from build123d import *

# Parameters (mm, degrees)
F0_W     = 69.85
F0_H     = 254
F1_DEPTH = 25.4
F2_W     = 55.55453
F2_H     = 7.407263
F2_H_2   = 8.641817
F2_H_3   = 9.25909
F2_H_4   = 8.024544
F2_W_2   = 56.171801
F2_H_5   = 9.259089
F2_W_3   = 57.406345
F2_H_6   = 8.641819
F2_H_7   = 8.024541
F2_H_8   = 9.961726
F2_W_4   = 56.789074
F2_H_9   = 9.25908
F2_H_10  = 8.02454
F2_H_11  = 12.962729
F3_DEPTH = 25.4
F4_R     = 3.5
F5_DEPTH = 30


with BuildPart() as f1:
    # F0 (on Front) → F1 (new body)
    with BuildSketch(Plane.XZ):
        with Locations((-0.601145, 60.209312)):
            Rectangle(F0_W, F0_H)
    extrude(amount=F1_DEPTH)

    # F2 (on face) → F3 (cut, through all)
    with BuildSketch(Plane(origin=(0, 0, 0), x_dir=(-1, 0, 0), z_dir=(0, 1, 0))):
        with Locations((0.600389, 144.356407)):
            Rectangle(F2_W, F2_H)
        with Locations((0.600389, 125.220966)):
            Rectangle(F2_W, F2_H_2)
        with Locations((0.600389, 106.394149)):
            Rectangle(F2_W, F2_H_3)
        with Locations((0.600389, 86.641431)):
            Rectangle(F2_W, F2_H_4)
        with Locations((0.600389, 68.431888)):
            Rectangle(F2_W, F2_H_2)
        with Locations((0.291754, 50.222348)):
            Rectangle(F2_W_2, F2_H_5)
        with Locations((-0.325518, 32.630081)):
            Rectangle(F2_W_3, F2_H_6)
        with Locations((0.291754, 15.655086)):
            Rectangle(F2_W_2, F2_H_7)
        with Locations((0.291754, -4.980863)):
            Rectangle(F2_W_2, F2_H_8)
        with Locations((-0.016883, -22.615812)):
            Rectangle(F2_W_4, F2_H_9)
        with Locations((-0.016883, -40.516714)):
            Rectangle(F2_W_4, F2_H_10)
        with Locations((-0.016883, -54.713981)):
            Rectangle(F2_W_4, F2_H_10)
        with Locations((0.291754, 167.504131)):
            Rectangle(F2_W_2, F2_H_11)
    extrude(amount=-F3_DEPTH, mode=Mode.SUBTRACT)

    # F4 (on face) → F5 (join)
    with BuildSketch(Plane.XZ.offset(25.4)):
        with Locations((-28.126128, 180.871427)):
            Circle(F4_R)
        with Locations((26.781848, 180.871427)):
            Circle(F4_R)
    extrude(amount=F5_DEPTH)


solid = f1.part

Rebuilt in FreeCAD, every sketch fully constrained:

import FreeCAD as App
import Part
import Sketcher

V = App.Vector
Q = App.Units.Quantity

doc = App.newDocument("Part")
params = doc.addObject("Spreadsheet::Sheet", "Params")
for row, (alias, value) in enumerate([
    ("sketch1_height", "10 in"),
    ("sketch1_width", "2.75 in"),
    ("pad1_length", "1 in"),
    ("pad2_length", "30 mm"),
], start=1):
    params.set(f"A{row}", alias)
    params.set(f"B{row}", "=" + value)
    params.setAlias(f"B{row}", alias)

body = doc.addObject("PartDesign::Body", "Body")

# Sketch on XZ plane
sketch1 = body.newObject("Sketcher::SketchObject", "Sketch")
sketch1.AttachmentSupport = (doc.getObject("XZ_Plane"), [""])
sketch1.MapMode = "FlatFace"
sketch1.addGeometry(Part.LineSegment(V(-35.526145, 187.209312, 0), V(-35.526145, -66.790688, 0)), False)
sketch1.addGeometry(Part.LineSegment(V(-35.526145, -66.790688, 0), V(34.323855, -66.790688, 0)), False)
sketch1.addGeometry(Part.LineSegment(V(34.323855, -66.790688, 0), V(34.323855, 187.209312, 0)), False)
sketch1.addGeometry(Part.LineSegment(V(34.323855, 187.209312, 0), V(-35.526145, 187.209312, 0)), False)
sketch1.addConstraint(Sketcher.Constraint("Coincident", 0, 2, 1, 1))
sketch1.addConstraint(Sketcher.Constraint("Coincident", 1, 2, 2, 1))
sketch1.addConstraint(Sketcher.Constraint("Coincident", 2, 2, 3, 1))
sketch1.addConstraint(Sketcher.Constraint("Coincident", 3, 2, 0, 1))
sketch1.addConstraint(Sketcher.Constraint("Vertical", 0))
sketch1.addConstraint(Sketcher.Constraint("Horizontal", 1))
sketch1.addConstraint(Sketcher.Constraint("Vertical", 2))
sketch1.addConstraint(Sketcher.Constraint("Horizontal", 3))
sketch1.addConstraint(Sketcher.Constraint("DistanceY", 0, 2, 0, 1, Q("10 in")))
sketch1.addConstraint(Sketcher.Constraint("DistanceX", 1, 1, 1, 2, Q("2.75 in")))
sketch1.addConstraint(Sketcher.Constraint("DistanceY", 0, 2, -1, 1, Q("66.790688 mm")))
sketch1.addConstraint(Sketcher.Constraint("DistanceX", 0, 2, -1, 1, Q("35.526145 mm")))
sketch1.setExpression("Constraints[8]", "Params.sketch1_height")
sketch1.setExpression("Constraints[9]", "Params.sketch1_width")
pad1 = body.newObject("PartDesign::Pad", "Pad")
pad1.Profile = sketch1
pad1.setExpression("Length", "Params.pad1_length")

# Sketch on XZ plane
sketch2 = body.newObject("Sketcher::SketchObject", "Sketch001")
sketch2.AttachmentSupport = (doc.getObject("XZ_Plane"), [""])
sketch2.MapMode = "FlatFace"
sketch2.addGeometry(Part.LineSegment(V(27.176876, 148.060038, 0), V(27.176876, 140.652775, 0)), False)
sketch2.addGeometry(Part.LineSegment(V(27.176876, 140.652775, 0), V(-28.377654, 140.652775, 0)), False)
sketch2.addGeometry(Part.LineSegment(V(-28.377654, 140.652775, 0), V(-28.377654, 148.060038, 0)), False)
sketch2.addGeometry(Part.LineSegment(V(-28.377654, 148.060038, 0), V(27.176876, 148.060038, 0)), False)
sketch2.addGeometry(Part.LineSegment(V(27.176876, 129.541875, 0), V(27.176876, 120.900058, 0)), False)
sketch2.addGeometry(Part.LineSegment(V(27.176876, 120.900058, 0), V(-28.377654, 120.900058, 0)), False)
sketch2.addGeometry(Part.LineSegment(V(-28.377654, 120.900058, 0), V(-28.377654, 129.541875, 0)), False)
sketch2.addGeometry(Part.LineSegment(V(-28.377654, 129.541875, 0), V(27.176876, 129.541875, 0)), False)
sketch2.addGeometry(Part.LineSegment(V(27.176876, 111.023694, 0), V(27.176876, 101.764604, 0)), False)
sketch2.addGeometry(Part.LineSegment(V(27.176876, 101.764604, 0), V(-28.377654, 101.764604, 0)), False)
sketch2.addGeometry(Part.LineSegment(V(-28.377654, 101.764604, 0), V(-28.377654, 111.023694, 0)), False)
sketch2.addGeometry(Part.LineSegment(V(-28.377654, 111.023694, 0), V(27.176876, 111.023694, 0)), False)
sketch2.addGeometry(Part.LineSegment(V(27.176876, 90.653703, 0), V(27.176876, 82.629159, 0)), False)
sketch2.addGeometry(Part.LineSegment(V(27.176876, 82.629159, 0), V(-28.377654, 82.629159, 0)), False)
sketch2.addGeometry(Part.LineSegment(V(-28.377654, 82.629159, 0), V(-28.377654, 90.653703, 0)), False)
sketch2.addGeometry(Part.LineSegment(V(-28.377654, 90.653703, 0), V(27.176876, 90.653703, 0)), False)
sketch2.addGeometry(Part.LineSegment(V(27.176876, 72.752797, 0), V(27.176876, 64.110979, 0)), False)
sketch2.addGeometry(Part.LineSegment(V(27.176876, 64.110979, 0), V(-28.377654, 64.110979, 0)), False)
sketch2.addGeometry(Part.LineSegment(V(-28.377654, 64.110979, 0), V(-28.377654, 72.752797, 0)), False)
sketch2.addGeometry(Part.LineSegment(V(-28.377654, 72.752797, 0), V(27.176876, 72.752797, 0)), False)
sketch2.addGeometry(Part.LineSegment(V(27.794147, 54.851892, 0), V(27.794147, 45.592804, 0)), False)
sketch2.addGeometry(Part.LineSegment(V(27.794147, 45.592804, 0), V(-28.377654, 45.592804, 0)), False)
sketch2.addGeometry(Part.LineSegment(V(-28.377654, 45.592804, 0), V(-28.377654, 54.851892, 0)), False)
sketch2.addGeometry(Part.LineSegment(V(-28.377654, 54.851892, 0), V(27.794147, 54.851892, 0)), False)
sketch2.addGeometry(Part.LineSegment(V(29.02869, 36.950991, 0), V(29.02869, 28.309172, 0)), False)
sketch2.addGeometry(Part.LineSegment(V(29.02869, 28.309172, 0), V(-28.377654, 28.309172, 0)), False)
sketch2.addGeometry(Part.LineSegment(V(-28.377654, 28.309172, 0), V(-28.377654, 36.950991, 0)), False)
sketch2.addGeometry(Part.LineSegment(V(-28.377654, 36.950991, 0), V(29.02869, 36.950991, 0)), False)
sketch2.addGeometry(Part.LineSegment(V(27.794147, 19.667357, 0), V(27.794147, 11.642815, 0)), False)
sketch2.addGeometry(Part.LineSegment(V(27.794147, 11.642815, 0), V(-28.377654, 11.642815, 0)), False)
sketch2.addGeometry(Part.LineSegment(V(-28.377654, 11.642815, 0), V(-28.377654, 19.667357, 0)), False)
sketch2.addGeometry(Part.LineSegment(V(-28.377654, 19.667357, 0), V(27.794147, 19.667357, 0)), False)
sketch2.addGeometry(Part.LineSegment(V(27.794147, 0, 0), V(27.794147, -9.961726, 0)), False)
sketch2.addGeometry(Part.LineSegment(V(27.794147, -9.961726, 0), V(-28.377654, -9.961726, 0)), False)
sketch2.addGeometry(Part.LineSegment(V(-28.377654, -9.961726, 0), V(-28.377654, 0, 0)), False)
sketch2.addGeometry(Part.LineSegment(V(-28.377654, 0, 0), V(27.794147, 0, 0)), False)
sketch2.addGeometry(Part.LineSegment(V(28.41142, -17.986272, 0), V(28.41142, -27.245352, 0)), False)
sketch2.addGeometry(Part.LineSegment(V(28.41142, -27.245352, 0), V(-28.377654, -27.245352, 0)), False)
sketch2.addGeometry(Part.LineSegment(V(-28.377654, -27.245352, 0), V(-28.377654, -17.986272, 0)), False)
sketch2.addGeometry(Part.LineSegment(V(-28.377654, -17.986272, 0), V(28.41142, -17.986272, 0)), False)
sketch2.addGeometry(Part.LineSegment(V(28.41142, -36.504444, 0), V(28.41142, -44.528984, 0)), False)
sketch2.addGeometry(Part.LineSegment(V(28.41142, -44.528984, 0), V(-28.377654, -44.528984, 0)), False)
sketch2.addGeometry(Part.LineSegment(V(-28.377654, -44.528984, 0), V(-28.377654, -36.504444, 0)), False)
sketch2.addGeometry(Part.LineSegment(V(-28.377654, -36.504444, 0), V(28.41142, -36.504444, 0)), False)
sketch2.addGeometry(Part.LineSegment(V(28.41142, -50.701711, 0), V(28.41142, -58.726251, 0)), False)
sketch2.addGeometry(Part.LineSegment(V(28.41142, -58.726251, 0), V(-28.377654, -58.726251, 0)), False)
sketch2.addGeometry(Part.LineSegment(V(-28.377654, -58.726251, 0), V(-28.377654, -50.701711, 0)), False)
sketch2.addGeometry(Part.LineSegment(V(-28.377654, -50.701711, 0), V(28.41142, -50.701711, 0)), False)
sketch2.addGeometry(Part.LineSegment(V(27.794147, 173.985496, 0), V(27.794147, 161.022766, 0)), False)
sketch2.addGeometry(Part.LineSegment(V(27.794147, 161.022766, 0), V(-28.377654, 161.022766, 0)), False)
sketch2.addGeometry(Part.LineSegment(V(-28.377654, 161.022766, 0), V(-28.377654, 173.985496, 0)), False)
sketch2.addGeometry(Part.LineSegment(V(-28.377654, 173.985496, 0), V(27.794147, 173.985496, 0)), False)
sketch2.addConstraint(Sketcher.Constraint("Coincident", 0, 2, 1, 1))
sketch2.addConstraint(Sketcher.Constraint("Coincident", 1, 2, 2, 1))
sketch2.addConstraint(Sketcher.Constraint("Coincident", 2, 2, 3, 1))
sketch2.addConstraint(Sketcher.Constraint("Coincident", 3, 2, 0, 1))
sketch2.addConstraint(Sketcher.Constraint("Coincident", 4, 2, 5, 1))
sketch2.addConstraint(Sketcher.Constraint("Coincident", 5, 2, 6, 1))
sketch2.addConstraint(Sketcher.Constraint("Coincident", 6, 2, 7, 1))
sketch2.addConstraint(Sketcher.Constraint("Coincident", 7, 2, 4, 1))
sketch2.addConstraint(Sketcher.Constraint("Coincident", 8, 2, 9, 1))
sketch2.addConstraint(Sketcher.Constraint("Coincident", 9, 2, 10, 1))
sketch2.addConstraint(Sketcher.Constraint("Coincident", 10, 2, 11, 1))
sketch2.addConstraint(Sketcher.Constraint("Coincident", 11, 2, 8, 1))
sketch2.addConstraint(Sketcher.Constraint("Coincident", 12, 2, 13, 1))
sketch2.addConstraint(Sketcher.Constraint("Coincident", 13, 2, 14, 1))
sketch2.addConstraint(Sketcher.Constraint("Coincident", 14, 2, 15, 1))
sketch2.addConstraint(Sketcher.Constraint("Coincident", 15, 2, 12, 1))
sketch2.addConstraint(Sketcher.Constraint("Coincident", 16, 2, 17, 1))
sketch2.addConstraint(Sketcher.Constraint("Coincident", 17, 2, 18, 1))
sketch2.addConstraint(Sketcher.Constraint("Coincident", 18, 2, 19, 1))
sketch2.addConstraint(Sketcher.Constraint("Coincident", 19, 2, 16, 1))
sketch2.addConstraint(Sketcher.Constraint("Coincident", 20, 2, 21, 1))
sketch2.addConstraint(Sketcher.Constraint("Coincident", 21, 2, 22, 1))
sketch2.addConstraint(Sketcher.Constraint("Coincident", 22, 2, 23, 1))
sketch2.addConstraint(Sketcher.Constraint("Coincident", 23, 2, 20, 1))
sketch2.addConstraint(Sketcher.Constraint("Coincident", 24, 2, 25, 1))
sketch2.addConstraint(Sketcher.Constraint("Coincident", 25, 2, 26, 1))
sketch2.addConstraint(Sketcher.Constraint("Coincident", 26, 2, 27, 1))
sketch2.addConstraint(Sketcher.Constraint("Coincident", 27, 2, 24, 1))
sketch2.addConstraint(Sketcher.Constraint("Coincident", 28, 2, 29, 1))
sketch2.addConstraint(Sketcher.Constraint("Coincident", 29, 2, 30, 1))
sketch2.addConstraint(Sketcher.Constraint("Coincident", 30, 2, 31, 1))
sketch2.addConstraint(Sketcher.Constraint("Coincident", 31, 2, 28, 1))
sketch2.addConstraint(Sketcher.Constraint("Coincident", 32, 2, 33, 1))
sketch2.addConstraint(Sketcher.Constraint("Coincident", 33, 2, 34, 1))
sketch2.addConstraint(Sketcher.Constraint("Coincident", 34, 2, 35, 1))
sketch2.addConstraint(Sketcher.Constraint("Coincident", 35, 2, 32, 1))
sketch2.addConstraint(Sketcher.Constraint("Coincident", 36, 2, 37, 1))
sketch2.addConstraint(Sketcher.Constraint("Coincident", 37, 2, 38, 1))
sketch2.addConstraint(Sketcher.Constraint("Coincident", 38, 2, 39, 1))
sketch2.addConstraint(Sketcher.Constraint("Coincident", 39, 2, 36, 1))
sketch2.addConstraint(Sketcher.Constraint("Coincident", 40, 2, 41, 1))
sketch2.addConstraint(Sketcher.Constraint("Coincident", 41, 2, 42, 1))
sketch2.addConstraint(Sketcher.Constraint("Coincident", 42, 2, 43, 1))
sketch2.addConstraint(Sketcher.Constraint("Coincident", 43, 2, 40, 1))
sketch2.addConstraint(Sketcher.Constraint("Coincident", 44, 2, 45, 1))
sketch2.addConstraint(Sketcher.Constraint("Coincident", 45, 2, 46, 1))
sketch2.addConstraint(Sketcher.Constraint("Coincident", 46, 2, 47, 1))
sketch2.addConstraint(Sketcher.Constraint("Coincident", 47, 2, 44, 1))
sketch2.addConstraint(Sketcher.Constraint("Coincident", 48, 2, 49, 1))
sketch2.addConstraint(Sketcher.Constraint("Coincident", 49, 2, 50, 1))
sketch2.addConstraint(Sketcher.Constraint("Coincident", 50, 2, 51, 1))
sketch2.addConstraint(Sketcher.Constraint("Coincident", 51, 2, 48, 1))
sketch2.addConstraint(Sketcher.Constraint("Vertical", 0))
sketch2.addConstraint(Sketcher.Constraint("Horizontal", 1))
sketch2.addConstraint(Sketcher.Constraint("Vertical", 2))
sketch2.addConstraint(Sketcher.Constraint("Horizontal", 3))
sketch2.addConstraint(Sketcher.Constraint("Vertical", 4))
sketch2.addConstraint(Sketcher.Constraint("Horizontal", 5))
sketch2.addConstraint(Sketcher.Constraint("Vertical", 6))
sketch2.addConstraint(Sketcher.Constraint("Horizontal", 7))
sketch2.addConstraint(Sketcher.Constraint("Vertical", 8))
sketch2.addConstraint(Sketcher.Constraint("Horizontal", 9))
sketch2.addConstraint(Sketcher.Constraint("Vertical", 10))
sketch2.addConstraint(Sketcher.Constraint("Horizontal", 11))
sketch2.addConstraint(Sketcher.Constraint("Vertical", 12))
sketch2.addConstraint(Sketcher.Constraint("Horizontal", 13))
sketch2.addConstraint(Sketcher.Constraint("Vertical", 14))
sketch2.addConstraint(Sketcher.Constraint("Horizontal", 15))
sketch2.addConstraint(Sketcher.Constraint("Vertical", 16))
sketch2.addConstraint(Sketcher.Constraint("Horizontal", 17))
sketch2.addConstraint(Sketcher.Constraint("Vertical", 18))
sketch2.addConstraint(Sketcher.Constraint("Horizontal", 19))
sketch2.addConstraint(Sketcher.Constraint("Vertical", 20))
sketch2.addConstraint(Sketcher.Constraint("Horizontal", 21))
sketch2.addConstraint(Sketcher.Constraint("Vertical", 22))
sketch2.addConstraint(Sketcher.Constraint("Horizontal", 23))
sketch2.addConstraint(Sketcher.Constraint("Vertical", 24))
sketch2.addConstraint(Sketcher.Constraint("Horizontal", 25))
sketch2.addConstraint(Sketcher.Constraint("Vertical", 26))
sketch2.addConstraint(Sketcher.Constraint("Horizontal", 27))
sketch2.addConstraint(Sketcher.Constraint("Vertical", 28))
sketch2.addConstraint(Sketcher.Constraint("Horizontal", 29))
sketch2.addConstraint(Sketcher.Constraint("Vertical", 30))
sketch2.addConstraint(Sketcher.Constraint("Horizontal", 31))
sketch2.addConstraint(Sketcher.Constraint("Vertical", 32))
sketch2.addConstraint(Sketcher.Constraint("Horizontal", 33))
sketch2.addConstraint(Sketcher.Constraint("Vertical", 34))
sketch2.addConstraint(Sketcher.Constraint("Horizontal", 35))
sketch2.addConstraint(Sketcher.Constraint("Vertical", 36))
sketch2.addConstraint(Sketcher.Constraint("Horizontal", 37))
sketch2.addConstraint(Sketcher.Constraint("Vertical", 38))
sketch2.addConstraint(Sketcher.Constraint("Horizontal", 39))
sketch2.addConstraint(Sketcher.Constraint("Vertical", 40))
sketch2.addConstraint(Sketcher.Constraint("Horizontal", 41))
sketch2.addConstraint(Sketcher.Constraint("Vertical", 42))
sketch2.addConstraint(Sketcher.Constraint("Horizontal", 43))
sketch2.addConstraint(Sketcher.Constraint("Vertical", 44))
sketch2.addConstraint(Sketcher.Constraint("Horizontal", 45))
sketch2.addConstraint(Sketcher.Constraint("Vertical", 46))
sketch2.addConstraint(Sketcher.Constraint("Horizontal", 47))
sketch2.addConstraint(Sketcher.Constraint("Vertical", 48))
sketch2.addConstraint(Sketcher.Constraint("Horizontal", 49))
sketch2.addConstraint(Sketcher.Constraint("Vertical", 50))
sketch2.addConstraint(Sketcher.Constraint("Horizontal", 51))
sketch2.addConstraint(Sketcher.Constraint("PointOnObject", 34, 2, -1))
sketch2.addConstraint(Sketcher.Constraint("Vertical", 3, 2, 4, 2))
sketch2.addConstraint(Sketcher.Constraint("Vertical", 2, 2, 5, 2))
sketch2.addConstraint(Sketcher.Constraint("Vertical", 7, 2, 8, 2))
sketch2.addConstraint(Sketcher.Constraint("Vertical", 6, 2, 9, 2))
sketch2.addConstraint(Sketcher.Constraint("Vertical", 11, 2, 12, 2))
sketch2.addConstraint(Sketcher.Constraint("Vertical", 10, 2, 13, 2))
sketch2.addConstraint(Sketcher.Constraint("Vertical", 15, 2, 16, 2))
sketch2.addConstraint(Sketcher.Constraint("Vertical", 14, 2, 17, 2))
sketch2.addConstraint(Sketcher.Constraint("Vertical", 18, 2, 21, 2))
sketch2.addConstraint(Sketcher.Constraint("Vertical", 22, 2, 25, 2))
sketch2.addConstraint(Sketcher.Constraint("Vertical", 23, 2, 28, 2))
sketch2.addConstraint(Sketcher.Constraint("Vertical", 26, 2, 29, 2))
sketch2.addConstraint(Sketcher.Constraint("Vertical", 31, 2, 32, 2))
sketch2.addConstraint(Sketcher.Constraint("Vertical", 30, 2, 33, 2))
sketch2.addConstraint(Sketcher.Constraint("Vertical", 34, 2, 37, 2))
sketch2.addConstraint(Sketcher.Constraint("Vertical", 39, 2, 40, 2))
sketch2.addConstraint(Sketcher.Constraint("Vertical", 38, 2, 41, 2))
sketch2.addConstraint(Sketcher.Constraint("Vertical", 43, 2, 44, 2))
sketch2.addConstraint(Sketcher.Constraint("Vertical", 42, 2, 45, 2))
sketch2.addConstraint(Sketcher.Constraint("Vertical", 35, 2, 48, 2))
sketch2.addConstraint(Sketcher.Constraint("Vertical", 46, 2, 49, 2))
sketch2.addConstraint(Sketcher.Constraint("Equal", 6, 16))
sketch2.addConstraint(Sketcher.Constraint("Equal", 10, 20))
sketch2.addConstraint(Sketcher.Constraint("Equal", 18, 24))
sketch2.addConstraint(Sketcher.Constraint("Equal", 30, 40))
sketch2.addConstraint(Sketcher.Constraint("Equal", 42, 44))
sketch2.addConstraint(Sketcher.Constraint("DistanceX", 21, 2, 21, 1, Q("56.171801 mm")))
sketch2.addConstraint(Sketcher.Constraint("DistanceX", 1, 2, 1, 1, Q("55.55453 mm")))
sketch2.addConstraint(Sketcher.Constraint("DistanceY", 8, 2, 8, 1, Q("9.25909 mm")))
sketch2.addConstraint(Sketcher.Constraint("DistanceY", 24, 2, 24, 1, Q("8.641819 mm")))
sketch2.addConstraint(Sketcher.Constraint("DistanceY", 28, 2, 28, 1, Q("8.024541 mm")))
sketch2.addConstraint(Sketcher.Constraint("DistanceY", 36, 2, 36, 1, Q("9.25908 mm")))
sketch2.addConstraint(Sketcher.Constraint("DistanceY", 48, 2, 48, 1, Q("12.962729 mm")))
sketch2.addConstraint(Sketcher.Constraint("DistanceY", 6, 2, 1, 2, Q("11.110901 mm")))
sketch2.addConstraint(Sketcher.Constraint("DistanceY", 12, 2, 4, 2, Q("38.270899 mm")))
sketch2.addConstraint(Sketcher.Constraint("DistanceY", 14, 2, 9, 2, Q("11.110901 mm")))
sketch2.addConstraint(Sketcher.Constraint("DistanceY", 20, 2, 15, 2, Q("45.060899 mm")))
sketch2.addConstraint(Sketcher.Constraint("DistanceY", 26, 2, 22, 2, Q("17.900902 mm")))
sketch2.addConstraint(Sketcher.Constraint("DistanceY", 40, 2, 28, 2, Q("56.171799 mm")))
sketch2.addConstraint(Sketcher.Constraint("DistanceY", 44, 2, 36, 2, Q("31.480899 mm")))
sketch2.addConstraint(Sketcher.Constraint("DistanceX", 25, 2, 25, 1, Q("57.406345 mm")))
sketch2.addConstraint(Sketcher.Constraint("DistanceX", 37, 2, 37, 1, Q("56.789074 mm")))
sketch2.addConstraint(Sketcher.Constraint("DistanceY", 0, 2, 0, 1, Q("7.407263 mm")))
sketch2.addConstraint(Sketcher.Constraint("DistanceY", 12, 2, 12, 1, Q("8.024544 mm")))
sketch2.addConstraint(Sketcher.Constraint("DistanceY", 32, 2, 32, 1, Q("9.961726 mm")))
sketch2.addConstraint(Sketcher.Constraint("DistanceY", -1, 1, 2, 2, Q("148.060038 mm")))
sketch2.addConstraint(Sketcher.Constraint("DistanceY", -1, 1, 16, 2, Q("64.110979 mm")))
sketch2.addConstraint(Sketcher.Constraint("DistanceX", -1, 1, 24, 2, Q("29.02869 mm")))
sketch2.addConstraint(Sketcher.Constraint("DistanceY", 38, 2, -1, 1, Q("17.986272 mm")))
sketch2.addConstraint(Sketcher.Constraint("DistanceY", 28, 2, 20, 2, Q("33.949988 mm")))
sketch2.addConstraint(Sketcher.Constraint("DistanceY", 0, 2, 48, 2, Q("20.369991 mm")))
pocket1 = body.newObject("PartDesign::Pocket", "Pocket")
pocket1.Profile = sketch2
pocket1.Type = "ThroughAll"
pocket1.Reversed = True

# Sketch on XZ plane
sketch3 = body.newObject("Sketcher::SketchObject", "Sketch002")
sketch3.AttachmentSupport = (doc.getObject("XZ_Plane"), [""])
sketch3.MapMode = "FlatFace"
sketch3.AttachmentOffset = App.Placement(V(0, 0, 1 * 25.4), App.Rotation())
sketch3.addGeometry(Part.Circle(V(-28.126128, 180.871427, 0), V(0, 0, 1), 3.5), False)
sketch3.addGeometry(Part.Circle(V(26.781848, 180.871427, 0), V(0, 0, 1), 3.5), False)
sketch3.addConstraint(Sketcher.Constraint("Equal", 0, 1))
sketch3.addConstraint(Sketcher.Constraint("Horizontal", 0, 3, 1, 3))
sketch3.addConstraint(Sketcher.Constraint("Diameter", 0, Q("7 mm")))
sketch3.addConstraint(Sketcher.Constraint("DistanceX", 0, 3, -1, 1, Q("28.126128 mm")))
sketch3.addConstraint(Sketcher.Constraint("DistanceX", -1, 1, 1, 3, Q("26.781848 mm")))
sketch3.addConstraint(Sketcher.Constraint("DistanceY", -1, 1, 0, 3, Q("180.871427 mm")))
pad2 = body.newObject("PartDesign::Pad", "Pad001")
pad2.Profile = sketch3
pad2.setExpression("Length", "Params.pad2_length")

doc.recompute()
